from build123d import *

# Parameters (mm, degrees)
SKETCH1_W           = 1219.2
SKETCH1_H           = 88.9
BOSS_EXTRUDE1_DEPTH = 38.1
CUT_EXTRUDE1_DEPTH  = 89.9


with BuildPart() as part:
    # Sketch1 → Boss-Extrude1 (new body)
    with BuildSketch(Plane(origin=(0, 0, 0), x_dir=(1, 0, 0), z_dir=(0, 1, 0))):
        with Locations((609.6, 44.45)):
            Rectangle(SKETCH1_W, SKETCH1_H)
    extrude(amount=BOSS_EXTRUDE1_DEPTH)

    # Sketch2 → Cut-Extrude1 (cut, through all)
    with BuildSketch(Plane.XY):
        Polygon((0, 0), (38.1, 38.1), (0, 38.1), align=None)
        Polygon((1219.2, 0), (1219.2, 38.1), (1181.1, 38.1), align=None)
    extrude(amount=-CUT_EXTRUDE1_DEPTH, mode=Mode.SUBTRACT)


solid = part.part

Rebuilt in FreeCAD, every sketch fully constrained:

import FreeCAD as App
import Part
import Sketcher

V = App.Vector
Q = App.Units.Quantity

doc = App.newDocument("Part")
body = doc.addObject("PartDesign::Body", "Body")

# Sketch on XZ plane
sketch1 = doc.addObject("Sketcher::SketchObject", "Sketch")
body.addObject(sketch1)
sketch1.AttachmentSupport = (doc.XZ_Plane, [""])
sketch1.MapMode = "FlatFace"
sketch1.addGeometry(Part.LineSegment(V(0, -88.9, 0), V(0, 0, 0)), False)
sketch1.addGeometry(Part.LineSegment(V(0, 0, 0), V(1219.2, 0, 0)), False)
sketch1.addGeometry(Part.LineSegment(V(1219.2, 0, 0), V(1219.2, -88.9, 0)), False)
sketch1.addGeometry(Part.LineSegment(V(1219.2, -88.9, 0), V(0, -88.9, 0)), False)
sketch1.addConstraint(Sketcher.Constraint("Coincident", 0, 2, 1, 1))
sketch1.addConstraint(Sketcher.Constraint("Coincident", 1, 2, 2, 1))
sketch1.addConstraint(Sketcher.Constraint("Coincident", 2, 2, 3, 1))
sketch1.addConstraint(Sketcher.Constraint("Coincident", 3, 2, 0, 1))
sketch1.addConstraint(Sketcher.Constraint("Vertical", 0))
sketch1.addConstraint(Sketcher.Constraint("Horizontal", 1))
sketch1.addConstraint(Sketcher.Constraint("Vertical", 2))
sketch1.addConstraint(Sketcher.Constraint("Horizontal", 3))
sketch1.addConstraint(Sketcher.Constraint("Coincident", 0, 2, -1, 1))
sketch1.addConstraint(Sketcher.Constraint("DistanceX", 1, 1, 1, 2, Q("48 in")))
sketch1.addConstraint(Sketcher.Constraint("DistanceY", 0, 1, 0, 2, Q("3.5 in")))
pad1 = doc.addObject("PartDesign::Pad", "Pad")
body.addObject(pad1)
pad1.Profile = sketch1
pad1.Length = Q("1.5 in")
pad1.Reversed = True

# Sketch on XY plane
sketch2 = doc.addObject("Sketcher::SketchObject", "Sketch001")
body.addObject(sketch2)
sketch2.AttachmentSupport = (doc.XY_Plane, [""])
sketch2.MapMode = "FlatFace"
sketch2.addGeometry(Part.LineSegment(V(0, 0, 0), V(38.1, 38.1, 0)), False)
sketch2.addGeometry(Part.LineSegment(V(38.1, 38.1, 0), V(0, 38.1, 0)), False)
sketch2.addGeometry(Part.LineSegment(V(0, 38.1, 0), V(0, 0, 0)), False)
sketch2.addGeometry(Part.LineSegment(V(1219.2, 0, 0), V(1219.2, 38.1, 0)), False)
sketch2.addGeometry(Part.LineSegment(V(1219.2, 38.1, 0), V(1181.1, 38.1, 0)), False)
sketch2.addGeometry(Part.LineSegment(V(1181.1, 38.1, 0), V(1219.2, 0, 0)), False)
sketch2.addConstraint(Sketcher.Constraint("Coincident", 0, 2, 1, 1))
sketch2.addConstraint(Sketcher.Constraint("Coincident", 1, 2, 2, 1))
sketch2.addConstraint(Sketcher.Constraint("Coincident", 2, 2, 0, 1))
sketch2.addConstraint(Sketcher.Constraint("Coincident", 3, 2, 4, 1))
sketch2.addConstraint(Sketcher.Constraint("Coincident", 4, 2, 5, 1))
sketch2.addConstraint(Sketcher.Constraint("Coincident", 5, 2, 3, 1))
sketch2.addConstraint(Sketcher.Constraint("Horizontal", 1))
sketch2.addConstraint(Sketcher.Constraint("Vertical", 2))
sketch2.addConstraint(Sketcher.Constraint("Vertical", 3))
sketch2.addConstraint(Sketcher.Constraint("Horizontal", 4))
sketch2.addConstraint(Sketcher.Constraint("Coincident", 2, 2, -1, 1))
sketch2.addConstraint(Sketcher.Constraint("PointOnObject", 5, 2, -1))
sketch2.addConstraint(Sketcher.Constraint("Perpendicular", 0, 5))
sketch2.addConstraint(Sketcher.Constraint("Horizontal", 1, 2, 3, 2))
sketch2.addConstraint(Sketcher.Constraint("Equal", 1, 4))
sketch2.addConstraint(Sketcher.Constraint("DistanceX", 1, 2, 1, 1, Q("1.5 in")))
sketch2.addConstraint(Sketcher.Constraint("DistanceX", -1, 1, 3, 2, Q("48 in")))
pocket1 = doc.addObject("PartDesign::Pocket", "Pocket")
body.addObject(pocket1)
pocket1.Profile = sketch2
pocket1.Type = "ThroughAll"

doc.recompute()
